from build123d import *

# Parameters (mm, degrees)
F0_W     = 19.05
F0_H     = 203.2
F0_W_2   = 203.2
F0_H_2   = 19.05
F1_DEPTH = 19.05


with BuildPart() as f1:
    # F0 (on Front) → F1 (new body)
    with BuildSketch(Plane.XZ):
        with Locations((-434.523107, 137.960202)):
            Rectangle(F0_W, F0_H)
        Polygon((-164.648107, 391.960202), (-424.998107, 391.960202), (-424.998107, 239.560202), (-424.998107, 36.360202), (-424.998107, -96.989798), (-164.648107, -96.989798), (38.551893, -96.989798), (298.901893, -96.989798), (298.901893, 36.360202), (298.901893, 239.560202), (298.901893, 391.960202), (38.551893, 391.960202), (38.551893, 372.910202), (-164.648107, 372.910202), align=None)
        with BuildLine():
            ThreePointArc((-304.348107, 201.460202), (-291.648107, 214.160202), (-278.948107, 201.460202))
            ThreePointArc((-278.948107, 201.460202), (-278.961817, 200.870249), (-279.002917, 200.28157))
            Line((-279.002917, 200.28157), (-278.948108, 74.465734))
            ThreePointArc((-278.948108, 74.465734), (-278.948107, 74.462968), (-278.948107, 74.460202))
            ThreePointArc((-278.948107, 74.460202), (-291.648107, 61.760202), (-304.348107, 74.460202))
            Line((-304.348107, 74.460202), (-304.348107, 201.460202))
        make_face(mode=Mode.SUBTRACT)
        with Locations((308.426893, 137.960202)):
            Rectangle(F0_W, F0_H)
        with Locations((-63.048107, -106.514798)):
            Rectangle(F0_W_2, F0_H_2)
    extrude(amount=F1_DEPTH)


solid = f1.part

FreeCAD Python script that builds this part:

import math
import FreeCAD as App
import Part
import Sketcher
Q = App.Units.Quantity

doc = App.newDocument("Part")
body = doc.addObject("PartDesign::Body", "Body")

# Sketch on XZ plane
sketch1 = body.newObject("Sketcher::SketchObject", "Sketch")
sketch1.AttachmentSupport = (doc.getObject("XZ_Plane"), [""])
sketch1.MapMode = "FlatFace"
sketch1.addGeometry([
    Part.LineSegment(App.Vector(-444.048, 239.56, 0), App.Vector(-444.048, 36.36, 0)),  # 0
    Part.LineSegment(App.Vector(-444.048, 36.36, 0), App.Vector(-424.998, 36.36, 0)),  # 1
    Part.LineSegment(App.Vector(-424.998, 36.36, 0), App.Vector(-424.998, -96.99, 0)),  # 2
    Part.LineSegment(App.Vector(-424.998, -96.99, 0), App.Vector(-164.648, -96.99, 0)),  # 3
    Part.LineSegment(App.Vector(-164.648, -96.99, 0), App.Vector(-164.648, -116.04, 0)),  # 4
    Part.LineSegment(App.Vector(-164.648, -116.04, 0), App.Vector(38.552, -116.04, 0)),  # 5
    Part.LineSegment(App.Vector(38.552, -116.04, 0), App.Vector(38.552, -96.99, 0)),  # 6
    Part.LineSegment(App.Vector(38.552, -96.99, 0), App.Vector(298.902, -96.99, 0)),  # 7
    Part.LineSegment(App.Vector(298.902, -96.99, 0), App.Vector(298.902, 36.36, 0)),  # 8
    Part.LineSegment(App.Vector(298.902, 36.36, 0), App.Vector(317.952, 36.36, 0)),  # 9
    Part.LineSegment(App.Vector(317.952, 36.36, 0), App.Vector(317.952, 239.56, 0)),  # 10
    Part.LineSegment(App.Vector(317.952, 239.56, 0), App.Vector(298.902, 239.56, 0)),  # 11
    Part.LineSegment(App.Vector(298.902, 239.56, 0), App.Vector(298.902, 391.96, 0)),  # 12
    Part.LineSegment(App.Vector(298.902, 391.96, 0), App.Vector(38.552, 391.96, 0)),  # 13
    Part.LineSegment(App.Vector(38.552, 391.96, 0), App.Vector(38.552, 372.91, 0)),  # 14
    Part.LineSegment(App.Vector(38.552, 372.91, 0), App.Vector(-164.648, 372.91, 0)),  # 15
    Part.LineSegment(App.Vector(-164.648, 372.91, 0), App.Vector(-164.648, 391.96, 0)),  # 16
    Part.LineSegment(App.Vector(-164.648, 391.96, 0), App.Vector(-424.998, 391.96, 0)),  # 17
    Part.LineSegment(App.Vector(-424.998, 391.96, 0), App.Vector(-424.998, 239.56, 0)),  # 18
    Part.LineSegment(App.Vector(-424.998, 239.56, 0), App.Vector(-444.048, 239.56, 0)),  # 19
    Part.LineSegment(App.Vector(-304.348, 74.46, 0), App.Vector(-304.348, 201.46, 0)),  # 20
    Part.ArcOfCircle(Part.Circle(App.Vector(-291.648, 201.46, 0), App.Vector(0, 0, 1), 12.7), math.radians(0), math.radians(180)),  # 21
    Part.ArcOfCircle(Part.Circle(App.Vector(-291.648, 201.46, 0), App.Vector(0, 0, 1), 12.7), math.radians(-5.33), math.radians(0)),  # 22
    Part.LineSegment(App.Vector(-279.003, 200.282, 0), App.Vector(-278.948, 74.466, 0)),  # 23
    Part.ArcOfCircle(Part.Circle(App.Vector(-286.599, 74.462, 0), App.Vector(0, 0, 1), 7.651), math.radians(-0.01), math.radians(0.03)),  # 24
    Part.ArcOfCircle(Part.Circle(App.Vector(-291.648, 74.46, 0), App.Vector(0, 0, 1), 12.7), math.radians(180), math.radians(360)),  # 25
], False)
sketch1.addConstraint([
    Sketcher.Constraint("Coincident", 0, 2, 1, 1),
    Sketcher.Constraint("Coincident", 1, 2, 2, 1),
    Sketcher.Constraint("Coincident", 2, 2, 3, 1),
    Sketcher.Constraint("Coincident", 3, 2, 4, 1),
    Sketcher.Constraint("Coincident", 4, 2, 5, 1),
    Sketcher.Constraint("Coincident", 5, 2, 6, 1),
    Sketcher.Constraint("Coincident", 6, 2, 7, 1),
    Sketcher.Constraint("Coincident", 7, 2, 8, 1),
    Sketcher.Constraint("Coincident", 8, 2, 9, 1),
    Sketcher.Constraint("Coincident", 9, 2, 10, 1),
    Sketcher.Constraint("Coincident", 10, 2, 11, 1),
    Sketcher.Constraint("Coincident", 11, 2, 12, 1),
    Sketcher.Constraint("Coincident", 12, 2, 13, 1),
    Sketcher.Constraint("Coincident", 13, 2, 14, 1),
    Sketcher.Constraint("Coincident", 14, 2, 15, 1),
    Sketcher.Constraint("Coincident", 15, 2, 16, 1),
    Sketcher.Constraint("Coincident", 16, 2, 17, 1),
    Sketcher.Constraint("Coincident", 17, 2, 18, 1),
    Sketcher.Constraint("Coincident", 18, 2, 19, 1),
    Sketcher.Constraint("Coincident", 19, 2, 0, 1),
    Sketcher.Constraint("Tangent", 20, 2, 21, 2),
    Sketcher.Constraint("Tangent", 21, 1, 22, 2),
    Sketcher.Constraint("Coincident", 22, 1, 23, 1),
    Sketcher.Constraint("Coincident", 23, 2, 24, 2),
    Sketcher.Constraint("Coincident", 24, 1, 25, 2),
    Sketcher.Constraint("Tangent", 25, 1, 20, 1),
    Sketcher.Constraint("Vertical", 0),
    Sketcher.Constraint("Horizontal", 1),
    Sketcher.Constraint("Vertical", 2),
    Sketcher.Constraint("Horizontal", 3),
    Sketcher.Constraint("Vertical", 4),
    Sketcher.Constraint("Horizontal", 5),
    Sketcher.Constraint("Vertical", 6),
    Sketcher.Constraint("Horizontal", 7),
    Sketcher.Constraint("Vertical", 8),
    Sketcher.Constraint("Horizontal", 9),
    Sketcher.Constraint("Vertical", 10),
    Sketcher.Constraint("Horizontal", 11),
    Sketcher.Constraint("Vertical", 12),
    Sketcher.Constraint("Horizontal", 13),
    Sketcher.Constraint("Vertical", 14),
    Sketcher.Constraint("Horizontal", 15),
    Sketcher.Constraint("Vertical", 16),
    Sketcher.Constraint("Horizontal", 17),
    Sketcher.Constraint("Vertical", 18),
    Sketcher.Constraint("Horizontal", 19),
    Sketcher.Constraint("Vertical", 20),
    Sketcher.Constraint("Equal", 21, 25),
    Sketcher.Constraint("Horizontal", 3, 2, 6, 2),
    Sketcher.Constraint("Horizontal", 1, 2, 8, 2),
    Sketcher.Constraint("Horizontal", 13, 2, 16, 2),
    Sketcher.Constraint("Horizontal", 11, 2, 18, 2),
    Sketcher.Constraint("Horizontal", 20, 2, 21, 1),
    Sketcher.Constraint("Horizontal", 25, 3, 24, 1),
    Sketcher.Constraint("Vertical", 8, 2, 11, 2),
    Sketcher.Constraint("Vertical", 6, 2, 13, 2),
    Sketcher.Constraint("Vertical", 4, 2, 15, 2),
    Sketcher.Constraint("Vertical", 2, 2, 17, 2),
    Sketcher.Constraint("Equal", 3, 7),
    Sketcher.Constraint("Equal", 1, 9),
    Sketcher.Constraint("Equal", 15, 0),
    Sketcher.Constraint("Equal", 19, 4),
    Sketcher.Constraint("Equal", 6, 14),
    Sketcher.Constraint("Radius", 21, Q("0.5 in")),
    Sketcher.Constraint("DistanceX", 5, 1, 5, 2, Q("8 in")),
    Sketcher.Constraint("DistanceY", 12, 1, 12, 2, Q("6 in")),
    Sketcher.Constraint("DistanceY", 20, 1, 20, 2, Q("5 in")),
    Sketcher.Constraint("DistanceX", 0, 2, 25, 3, Q("6 in")),
    Sketcher.Constraint("DistanceX", 25, 3, 3, 2, Q("5 in")),
    Sketcher.Constraint("DistanceY", 4, 2, 1, 2, Q("6 in")),
    Sketcher.Constraint("DistanceX", 1, 1, 1, 2, Q("0.75 in")),
    Sketcher.Constraint("DistanceY", 0, 2, 25, 3, Q("1.5 in")),
    Sketcher.Constraint("Radius", 22, 12.700119),
    Sketcher.Constraint("Radius", 24, 7.650757),
    Sketcher.Constraint("DistanceY", -1, 1, 25, 3, 74.460202),
    Sketcher.Constraint("DistanceY", -1, 1, 22, 1, 200.28157),
    Sketcher.Constraint("DistanceX", 23, 2, -1, 1, 278.948108),
    Sketcher.Constraint("DistanceY", 24, 3, 22, 3, 126.998621),
    Sketcher.Constraint("DistanceY", 24, 3, 23, 2, 0.004149),
])
pad1 = body.newObject("PartDesign::Pad", "Pad")
pad1.Profile = sketch1
pad1.Length = Q("0.75 in")

doc.recompute()
